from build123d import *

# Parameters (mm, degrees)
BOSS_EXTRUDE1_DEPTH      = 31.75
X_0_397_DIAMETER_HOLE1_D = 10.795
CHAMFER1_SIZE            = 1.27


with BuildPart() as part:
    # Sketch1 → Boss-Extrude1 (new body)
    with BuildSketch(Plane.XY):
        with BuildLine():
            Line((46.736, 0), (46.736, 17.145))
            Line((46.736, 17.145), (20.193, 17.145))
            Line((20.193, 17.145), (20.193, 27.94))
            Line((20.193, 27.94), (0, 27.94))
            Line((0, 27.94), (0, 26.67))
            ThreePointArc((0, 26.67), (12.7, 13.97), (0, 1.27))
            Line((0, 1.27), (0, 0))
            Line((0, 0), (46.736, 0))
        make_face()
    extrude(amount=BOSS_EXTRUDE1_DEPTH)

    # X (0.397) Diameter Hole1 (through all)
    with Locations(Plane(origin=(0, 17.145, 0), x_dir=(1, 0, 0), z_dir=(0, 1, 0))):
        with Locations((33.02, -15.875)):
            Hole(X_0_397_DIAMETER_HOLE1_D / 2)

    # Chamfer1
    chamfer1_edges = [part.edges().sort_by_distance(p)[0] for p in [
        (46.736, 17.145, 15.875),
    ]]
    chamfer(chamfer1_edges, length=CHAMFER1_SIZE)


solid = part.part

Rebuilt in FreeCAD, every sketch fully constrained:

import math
import FreeCAD as App
import Part
import Sketcher

V = App.Vector
Q = App.Units.Quantity


def edges_at(feature, points):
    """Names of the edges that pass closest to the given points."""
    edges = feature.Shape.Edges
    near = lambda p: min(range(len(edges)), key=lambda i: edges[i].distToShape(Part.Vertex(*p))[0])
    return sorted({f"Edge{near(p) + 1}" for p in points})

doc = App.newDocument("Part")
body = doc.addObject("PartDesign::Body", "Body")

# Sketch on XY plane
sketch1 = body.newObject("Sketcher::SketchObject", "Sketch")
sketch1.AttachmentSupport = (doc.getObject("XY_Plane"), [""])
sketch1.MapMode = "FlatFace"
sketch1.addGeometry([
    Part.LineSegment(V(46.7, 0, 0), V(46.7, 17.1, 0)),  # 0
    Part.LineSegment(V(46.7, 17.1, 0), V(20.2, 17.1, 0)),  # 1
    Part.LineSegment(V(20.2, 17.1, 0), V(20.2, 27.9, 0)),  # 2
    Part.LineSegment(V(20.2, 27.9, 0), V(0, 27.9, 0)),  # 3
    Part.LineSegment(V(0, 27.9, 0), V(0, 26.7, 0)),  # 4
    Part.ArcOfCircle(Part.Circle(V(0, 14, 0), V(0, 0, 1), 12.7), math.radians(-90), math.radians(90)),  # 5
    Part.LineSegment(V(0, 1.3, 0), V(0, 0, 0)),  # 6
    Part.LineSegment(V(0, 0, 0), V(46.7, 0, 0)),  # 7
], False)
sketch1.addConstraint([
    Sketcher.Constraint("Coincident", 0, 2, 1, 1),
    Sketcher.Constraint("Coincident", 1, 2, 2, 1),
    Sketcher.Constraint("Coincident", 2, 2, 3, 1),
    Sketcher.Constraint("Coincident", 3, 2, 4, 1),
    Sketcher.Constraint("Coincident", 4, 2, 5, 2),
    Sketcher.Constraint("Coincident", 5, 1, 6, 1),
    Sketcher.Constraint("Coincident", 6, 2, 7, 1),
    Sketcher.Constraint("Coincident", 7, 2, 0, 1),
    Sketcher.Constraint("Vertical", 0),
    Sketcher.Constraint("Horizontal", 1),
    Sketcher.Constraint("Vertical", 2),
    Sketcher.Constraint("Horizontal", 3),
    Sketcher.Constraint("Vertical", 4),
    Sketcher.Constraint("Vertical", 6),
    Sketcher.Constraint("Horizontal", 7),
    Sketcher.Constraint("Coincident", 6, 2, -1, 1),
    Sketcher.Constraint("PointOnObject", 5, 3, -2),
    Sketcher.Constraint("PointOnObject", 3, 2, -2),
    Sketcher.Constraint("Equal", 4, 6),
    Sketcher.Constraint("Radius", 5, Q("0.5 in")),
    Sketcher.Constraint("DistanceX", 7, 1, 7, 2, Q("1.84 in")),
    Sketcher.Constraint("DistanceY", 4, 2, 4, 1, Q("0.05 in")),
    Sketcher.Constraint("DistanceX", 1, 2, 1, 1, Q("1.045 in")),
    Sketcher.Constraint("DistanceY", 0, 1, 0, 2, Q("0.675 in")),
])
pad1 = body.newObject("PartDesign::Pad", "Pad")
pad1.Profile = sketch1
pad1.Length = Q("1.25 in")

# Sketch on XZ plane
sketch2 = body.newObject("Sketcher::SketchObject", "Sketch001")
sketch2.AttachmentSupport = (doc.getObject("XZ_Plane"), [""])
sketch2.MapMode = "FlatFace"
sketch2.AttachmentOffset = App.Placement(V(0, 0, -0.675 * 25.4), App.Rotation())
sketch2.addGeometry(Part.Circle(V(33, 16, 0), V(0, 0, 1), 5), False)
sketch2.addConstraint([
    Sketcher.Constraint("Diameter", 0, Q("0.425 in")),
    Sketcher.Constraint("DistanceX", -1, 1, 0, 3, Q("1.3 in")),
    Sketcher.Constraint("DistanceY", -1, 1, 0, 3, Q("0.625 in")),
])
doc.recompute()
hole = body.newObject("PartDesign::Hole", "Hole")
hole.Profile = sketch2
hole.ThreadType = "None"
hole.Diameter = Q("0.425 in")
hole.DepthType = "ThroughAll"
hole.Reversed = True
doc.recompute()

chamfer = body.newObject("PartDesign::Chamfer", "Chamfer")
chamfer.Base = (hole, edges_at(hole, [(46.736, 17.145, 15.875)]))
chamfer.Size = Q("0.05 in")

doc.recompute()
